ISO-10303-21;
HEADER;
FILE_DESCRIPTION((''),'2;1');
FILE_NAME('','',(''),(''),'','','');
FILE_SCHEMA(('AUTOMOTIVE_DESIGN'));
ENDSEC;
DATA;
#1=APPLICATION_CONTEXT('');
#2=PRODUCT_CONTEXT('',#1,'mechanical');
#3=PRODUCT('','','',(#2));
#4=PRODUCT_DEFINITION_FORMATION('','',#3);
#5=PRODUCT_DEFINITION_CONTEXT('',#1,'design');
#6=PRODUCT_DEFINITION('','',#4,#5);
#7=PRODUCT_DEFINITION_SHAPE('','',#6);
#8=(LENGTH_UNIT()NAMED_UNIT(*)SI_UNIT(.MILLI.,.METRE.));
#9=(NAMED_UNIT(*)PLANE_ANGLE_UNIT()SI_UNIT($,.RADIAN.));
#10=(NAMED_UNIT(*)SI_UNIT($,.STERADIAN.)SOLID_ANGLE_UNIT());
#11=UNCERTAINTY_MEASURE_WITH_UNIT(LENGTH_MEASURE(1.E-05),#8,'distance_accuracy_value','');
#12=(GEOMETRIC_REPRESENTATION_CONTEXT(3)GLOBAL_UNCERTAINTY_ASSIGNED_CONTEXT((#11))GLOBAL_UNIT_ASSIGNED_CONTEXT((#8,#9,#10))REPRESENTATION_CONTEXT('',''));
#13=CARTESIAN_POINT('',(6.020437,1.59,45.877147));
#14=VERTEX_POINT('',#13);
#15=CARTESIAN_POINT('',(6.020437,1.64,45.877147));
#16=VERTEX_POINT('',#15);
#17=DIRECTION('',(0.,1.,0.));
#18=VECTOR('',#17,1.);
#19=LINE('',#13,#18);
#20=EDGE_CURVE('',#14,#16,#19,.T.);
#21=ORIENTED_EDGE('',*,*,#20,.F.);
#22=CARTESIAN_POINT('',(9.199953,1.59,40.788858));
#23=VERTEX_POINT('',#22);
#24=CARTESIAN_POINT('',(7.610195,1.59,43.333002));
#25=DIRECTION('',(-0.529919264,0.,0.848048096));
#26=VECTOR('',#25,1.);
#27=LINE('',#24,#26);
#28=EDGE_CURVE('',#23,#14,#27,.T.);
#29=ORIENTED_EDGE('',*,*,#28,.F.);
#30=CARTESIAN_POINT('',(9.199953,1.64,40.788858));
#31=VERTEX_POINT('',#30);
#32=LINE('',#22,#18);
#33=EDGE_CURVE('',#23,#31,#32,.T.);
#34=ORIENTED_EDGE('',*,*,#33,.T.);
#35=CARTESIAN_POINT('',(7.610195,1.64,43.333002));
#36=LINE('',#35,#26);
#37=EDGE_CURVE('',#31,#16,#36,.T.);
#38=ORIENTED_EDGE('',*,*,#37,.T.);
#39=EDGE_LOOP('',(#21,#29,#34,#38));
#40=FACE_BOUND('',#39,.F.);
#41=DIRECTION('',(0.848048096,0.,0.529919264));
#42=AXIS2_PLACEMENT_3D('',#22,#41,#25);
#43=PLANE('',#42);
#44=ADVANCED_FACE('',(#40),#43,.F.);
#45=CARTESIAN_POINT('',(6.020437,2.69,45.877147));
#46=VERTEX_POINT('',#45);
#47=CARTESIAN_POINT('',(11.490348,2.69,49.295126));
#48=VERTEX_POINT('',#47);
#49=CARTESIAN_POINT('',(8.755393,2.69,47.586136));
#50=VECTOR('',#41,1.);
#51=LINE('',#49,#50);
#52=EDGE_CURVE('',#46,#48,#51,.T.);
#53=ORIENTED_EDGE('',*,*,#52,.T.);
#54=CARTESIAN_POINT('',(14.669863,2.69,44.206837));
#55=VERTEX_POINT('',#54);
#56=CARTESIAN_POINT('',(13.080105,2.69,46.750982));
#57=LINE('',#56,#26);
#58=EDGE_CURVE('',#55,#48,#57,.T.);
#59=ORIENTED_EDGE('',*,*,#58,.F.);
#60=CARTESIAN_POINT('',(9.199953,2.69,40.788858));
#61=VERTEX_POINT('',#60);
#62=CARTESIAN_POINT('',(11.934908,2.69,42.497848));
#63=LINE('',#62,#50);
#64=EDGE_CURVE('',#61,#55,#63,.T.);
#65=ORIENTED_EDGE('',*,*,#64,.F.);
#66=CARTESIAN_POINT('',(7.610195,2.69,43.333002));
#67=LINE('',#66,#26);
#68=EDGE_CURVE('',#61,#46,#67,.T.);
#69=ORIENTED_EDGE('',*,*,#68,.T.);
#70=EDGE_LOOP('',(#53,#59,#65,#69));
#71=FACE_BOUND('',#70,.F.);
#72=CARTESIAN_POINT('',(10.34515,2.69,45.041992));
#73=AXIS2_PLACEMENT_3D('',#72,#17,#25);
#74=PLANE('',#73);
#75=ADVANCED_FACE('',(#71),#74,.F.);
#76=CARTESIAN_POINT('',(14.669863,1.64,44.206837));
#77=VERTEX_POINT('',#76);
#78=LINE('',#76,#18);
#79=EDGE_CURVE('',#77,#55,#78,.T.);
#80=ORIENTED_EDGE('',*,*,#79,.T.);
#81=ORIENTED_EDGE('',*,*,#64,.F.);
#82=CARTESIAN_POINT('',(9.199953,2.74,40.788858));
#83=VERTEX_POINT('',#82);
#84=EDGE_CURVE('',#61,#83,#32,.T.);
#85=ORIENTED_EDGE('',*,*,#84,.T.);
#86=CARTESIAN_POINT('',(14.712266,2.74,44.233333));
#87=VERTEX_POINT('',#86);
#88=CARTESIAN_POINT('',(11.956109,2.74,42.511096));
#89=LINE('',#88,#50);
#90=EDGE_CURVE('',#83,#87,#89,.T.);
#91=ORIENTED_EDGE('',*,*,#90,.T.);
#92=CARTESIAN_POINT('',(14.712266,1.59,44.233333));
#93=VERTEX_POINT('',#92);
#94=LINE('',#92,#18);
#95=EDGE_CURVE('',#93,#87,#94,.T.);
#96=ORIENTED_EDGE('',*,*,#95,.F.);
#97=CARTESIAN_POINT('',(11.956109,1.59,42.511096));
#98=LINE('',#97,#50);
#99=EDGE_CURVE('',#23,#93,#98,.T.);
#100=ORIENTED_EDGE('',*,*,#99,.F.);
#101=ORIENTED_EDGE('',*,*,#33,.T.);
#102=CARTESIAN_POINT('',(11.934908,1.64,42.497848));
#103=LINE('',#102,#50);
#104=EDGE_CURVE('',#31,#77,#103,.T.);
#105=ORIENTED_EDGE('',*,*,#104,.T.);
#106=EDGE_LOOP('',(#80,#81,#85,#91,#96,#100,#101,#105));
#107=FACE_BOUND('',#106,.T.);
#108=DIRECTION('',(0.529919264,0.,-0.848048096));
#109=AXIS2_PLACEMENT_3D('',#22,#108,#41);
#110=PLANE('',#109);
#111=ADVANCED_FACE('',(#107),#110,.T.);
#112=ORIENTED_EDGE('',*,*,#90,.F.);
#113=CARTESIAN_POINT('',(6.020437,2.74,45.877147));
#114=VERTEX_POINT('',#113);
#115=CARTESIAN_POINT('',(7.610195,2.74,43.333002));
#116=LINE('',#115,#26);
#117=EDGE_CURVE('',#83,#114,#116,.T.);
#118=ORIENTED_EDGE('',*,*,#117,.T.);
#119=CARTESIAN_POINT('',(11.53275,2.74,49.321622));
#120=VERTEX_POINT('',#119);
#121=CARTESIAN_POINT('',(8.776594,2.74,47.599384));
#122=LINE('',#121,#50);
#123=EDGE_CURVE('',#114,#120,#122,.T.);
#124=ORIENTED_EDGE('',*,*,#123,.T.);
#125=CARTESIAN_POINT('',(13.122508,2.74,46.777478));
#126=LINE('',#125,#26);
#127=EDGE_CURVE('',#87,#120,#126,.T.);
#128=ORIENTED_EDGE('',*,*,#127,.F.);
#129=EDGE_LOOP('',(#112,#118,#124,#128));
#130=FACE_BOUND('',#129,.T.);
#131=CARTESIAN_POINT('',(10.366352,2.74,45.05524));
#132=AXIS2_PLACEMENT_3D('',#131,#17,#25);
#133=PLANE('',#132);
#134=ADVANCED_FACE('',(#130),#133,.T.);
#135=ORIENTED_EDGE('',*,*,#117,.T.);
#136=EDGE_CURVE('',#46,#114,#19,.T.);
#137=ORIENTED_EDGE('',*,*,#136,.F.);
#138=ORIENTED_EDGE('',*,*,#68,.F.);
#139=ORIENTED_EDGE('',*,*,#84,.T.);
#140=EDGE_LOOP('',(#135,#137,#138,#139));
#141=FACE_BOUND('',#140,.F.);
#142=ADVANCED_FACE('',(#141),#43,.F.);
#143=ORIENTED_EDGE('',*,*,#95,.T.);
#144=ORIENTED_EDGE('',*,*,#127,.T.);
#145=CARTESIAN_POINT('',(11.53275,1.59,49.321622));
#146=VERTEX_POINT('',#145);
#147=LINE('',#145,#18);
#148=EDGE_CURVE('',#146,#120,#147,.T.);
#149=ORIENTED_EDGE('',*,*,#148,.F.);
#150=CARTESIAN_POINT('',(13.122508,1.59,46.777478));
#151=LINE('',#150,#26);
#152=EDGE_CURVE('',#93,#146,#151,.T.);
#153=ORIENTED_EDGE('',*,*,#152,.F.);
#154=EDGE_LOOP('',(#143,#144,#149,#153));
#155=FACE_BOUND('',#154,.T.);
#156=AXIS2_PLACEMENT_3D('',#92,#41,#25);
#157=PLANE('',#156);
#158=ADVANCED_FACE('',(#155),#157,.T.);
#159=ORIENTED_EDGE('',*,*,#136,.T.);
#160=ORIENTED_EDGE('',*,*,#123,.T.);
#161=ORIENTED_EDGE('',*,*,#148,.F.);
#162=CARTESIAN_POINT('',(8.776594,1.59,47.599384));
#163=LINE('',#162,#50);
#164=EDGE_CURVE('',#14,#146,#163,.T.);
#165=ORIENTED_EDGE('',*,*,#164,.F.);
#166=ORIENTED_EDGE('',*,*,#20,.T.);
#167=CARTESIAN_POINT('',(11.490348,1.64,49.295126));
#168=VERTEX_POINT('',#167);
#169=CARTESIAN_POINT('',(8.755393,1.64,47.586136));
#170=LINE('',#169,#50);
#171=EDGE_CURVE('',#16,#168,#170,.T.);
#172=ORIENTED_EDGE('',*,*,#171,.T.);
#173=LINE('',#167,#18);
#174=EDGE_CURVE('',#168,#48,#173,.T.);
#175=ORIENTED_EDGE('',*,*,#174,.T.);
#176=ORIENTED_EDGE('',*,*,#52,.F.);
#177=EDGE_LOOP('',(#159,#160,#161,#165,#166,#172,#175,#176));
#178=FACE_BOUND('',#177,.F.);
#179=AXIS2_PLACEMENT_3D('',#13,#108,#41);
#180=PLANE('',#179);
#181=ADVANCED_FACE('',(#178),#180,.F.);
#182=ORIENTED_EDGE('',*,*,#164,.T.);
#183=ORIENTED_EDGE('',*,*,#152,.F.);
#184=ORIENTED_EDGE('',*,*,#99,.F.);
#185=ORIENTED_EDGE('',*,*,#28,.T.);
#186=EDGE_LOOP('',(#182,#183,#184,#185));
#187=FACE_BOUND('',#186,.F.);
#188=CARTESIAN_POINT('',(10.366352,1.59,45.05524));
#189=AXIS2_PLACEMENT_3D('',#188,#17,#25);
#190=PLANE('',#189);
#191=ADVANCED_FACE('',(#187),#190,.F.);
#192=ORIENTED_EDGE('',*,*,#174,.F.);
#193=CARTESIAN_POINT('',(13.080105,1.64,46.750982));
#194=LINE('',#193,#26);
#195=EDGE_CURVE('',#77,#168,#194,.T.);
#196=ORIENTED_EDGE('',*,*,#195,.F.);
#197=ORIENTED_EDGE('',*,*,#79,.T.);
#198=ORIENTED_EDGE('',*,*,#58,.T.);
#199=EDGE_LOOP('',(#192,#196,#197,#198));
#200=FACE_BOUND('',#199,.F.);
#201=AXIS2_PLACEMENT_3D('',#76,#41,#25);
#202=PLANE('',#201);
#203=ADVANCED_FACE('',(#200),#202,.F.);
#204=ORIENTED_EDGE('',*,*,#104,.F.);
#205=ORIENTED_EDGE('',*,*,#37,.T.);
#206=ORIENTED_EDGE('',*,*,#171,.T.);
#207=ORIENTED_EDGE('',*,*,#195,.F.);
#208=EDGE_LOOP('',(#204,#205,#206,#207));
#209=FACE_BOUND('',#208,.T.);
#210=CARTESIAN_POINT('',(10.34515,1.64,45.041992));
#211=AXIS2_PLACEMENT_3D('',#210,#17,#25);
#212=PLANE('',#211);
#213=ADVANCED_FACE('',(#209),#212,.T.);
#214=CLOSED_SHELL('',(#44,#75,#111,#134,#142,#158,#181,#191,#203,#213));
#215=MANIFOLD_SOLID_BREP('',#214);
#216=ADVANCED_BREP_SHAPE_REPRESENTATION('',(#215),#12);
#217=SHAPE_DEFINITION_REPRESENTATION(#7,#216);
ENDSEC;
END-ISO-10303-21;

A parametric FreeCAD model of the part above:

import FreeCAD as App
import Part
import Sketcher

V = App.Vector
Q = App.Units.Quantity


def add_polygon(sketch, points):
    """Adds a closed chain of lines whose ends are joined by coincident constraints."""
    first, n = sketch.GeometryCount, len(points)
    for a, b in zip(points, points[1:] + points[:1]):
        sketch.addGeometry(Part.LineSegment(App.Vector(*a, 0), App.Vector(*b, 0)), False)
    for i in range(n):
        sketch.addConstraint(Sketcher.Constraint("Coincident", first + i, 2, first + (i + 1) % n, 1))

doc = App.newDocument("Part")
params = doc.addObject("Spreadsheet::Sheet", "Params")
for row, (alias, value) in enumerate([
    ("sketch1_width", "6 mm"),
    ("sketch1_height", "6.45 mm"),
    ("pad1_length", "1.05 mm"),
    ("sketch2_width", "6 mm"),
    ("sketch2_height", "6.5 mm"),
    ("pad2_length", "1.15 mm"),
], start=1):
    params.set(f"A{row}", alias)
    params.set(f"B{row}", "=" + value)
    params.setAlias(f"B{row}", alias)

body = doc.addObject("PartDesign::Body", "Body")

# Sketch on XY plane
sketch1 = body.newObject("Sketcher::SketchObject", "Sketch")
sketch1.AttachmentSupport = (doc.getObject("XY_Plane"), [""])
sketch1.MapMode = "FlatFace"
sketch1.AttachmentOffset = App.Placement(V(0, 0, 0.05), App.Rotation())
add_polygon(sketch1, [(0, 6.45), (0, 0), (6, 0), (6, 6.45)])  # lines 0-3
sketch1.addConstraint(Sketcher.Constraint("Vertical", 0))
sketch1.addConstraint(Sketcher.Constraint("Horizontal", 1))
sketch1.addConstraint(Sketcher.Constraint("Vertical", 2))
sketch1.addConstraint(Sketcher.Constraint("Horizontal", 3))
sketch1.addConstraint(Sketcher.Constraint("Coincident", 0, 2, -1, 1))
sketch1.addConstraint(Sketcher.Constraint("DistanceX", 1, 1, 1, 2, Q("6 mm")))
sketch1.addConstraint(Sketcher.Constraint("DistanceY", 0, 2, 0, 1, Q("6.45 mm")))
sketch1.setExpression("Constraints[9]", "Params.sketch1_width")
sketch1.setExpression("Constraints[10]", "Params.sketch1_height")
pad1 = body.newObject("PartDesign::Pad", "Pad")
pad1.Profile = sketch1
pad1.setExpression("Length", "Params.pad1_length")
body2 = doc.addObject("PartDesign::Body", "Body001")

# Sketch on XY plane
sketch2 = body2.newObject("Sketcher::SketchObject", "Sketch001")
sketch2.AttachmentSupport = (doc.getObject("XY_Plane001"), [""])
sketch2.MapMode = "FlatFace"
add_polygon(sketch2, [(0, 6.5), (0, 0), (6, 0), (6, 6.5)])  # lines 0-3
sketch2.addConstraint(Sketcher.Constraint("Vertical", 0))
sketch2.addConstraint(Sketcher.Constraint("Horizontal", 1))
sketch2.addConstraint(Sketcher.Constraint("Vertical", 2))
sketch2.addConstraint(Sketcher.Constraint("Horizontal", 3))
sketch2.addConstraint(Sketcher.Constraint("Coincident", 0, 2, -1, 1))
sketch2.addConstraint(Sketcher.Constraint("DistanceX", 1, 1, 1, 2, Q("6 mm")))
sketch2.addConstraint(Sketcher.Constraint("DistanceY", 0, 2, 0, 1, Q("6.5 mm")))
sketch2.setExpression("Constraints[9]", "Params.sketch2_width")
sketch2.setExpression("Constraints[10]", "Params.sketch2_height")
pad2 = body2.newObject("PartDesign::Pad", "Pad001")
pad2.Profile = sketch2
pad2.setExpression("Length", "Params.pad2_length")
doc.recompute()

boolean = body2.newObject("PartDesign::Boolean", "Boolean")
boolean.Type = "Cut"
boolean.addObjects([body])
body3 = doc.addObject("PartDesign::Body", "Body002")
doc.recompute()

body2.Placement = App.Placement(V(0, 0, 0), App.Rotation(V(1, 0, 0), 90))
boolean2 = body3.newObject("PartDesign::Boolean", "Boolean001")
boolean2.Type = "Fuse"
boolean2.addObjects([body2])
body4 = doc.addObject("PartDesign::Body", "Body003")
doc.recompute()

body3.Placement = App.Placement(V(0, 0, 0), App.Rotation(V(0, 1, 0), 302))
boolean3 = body4.newObject("PartDesign::Boolean", "Boolean002")
boolean3.Type = "Fuse"
boolean3.addObjects([body3])
body5 = doc.addObject("PartDesign::Body", "Body004")
doc.recompute()

body4.Placement = App.Placement(V(9.199953, 1.59, 40.788858), App.Rotation(V(0, 0, 1), 180))
boolean4 = body5.newObject("PartDesign::Boolean", "Boolean003")
boolean4.Type = "Fuse"
boolean4.addObjects([body4])

doc.recompute()
